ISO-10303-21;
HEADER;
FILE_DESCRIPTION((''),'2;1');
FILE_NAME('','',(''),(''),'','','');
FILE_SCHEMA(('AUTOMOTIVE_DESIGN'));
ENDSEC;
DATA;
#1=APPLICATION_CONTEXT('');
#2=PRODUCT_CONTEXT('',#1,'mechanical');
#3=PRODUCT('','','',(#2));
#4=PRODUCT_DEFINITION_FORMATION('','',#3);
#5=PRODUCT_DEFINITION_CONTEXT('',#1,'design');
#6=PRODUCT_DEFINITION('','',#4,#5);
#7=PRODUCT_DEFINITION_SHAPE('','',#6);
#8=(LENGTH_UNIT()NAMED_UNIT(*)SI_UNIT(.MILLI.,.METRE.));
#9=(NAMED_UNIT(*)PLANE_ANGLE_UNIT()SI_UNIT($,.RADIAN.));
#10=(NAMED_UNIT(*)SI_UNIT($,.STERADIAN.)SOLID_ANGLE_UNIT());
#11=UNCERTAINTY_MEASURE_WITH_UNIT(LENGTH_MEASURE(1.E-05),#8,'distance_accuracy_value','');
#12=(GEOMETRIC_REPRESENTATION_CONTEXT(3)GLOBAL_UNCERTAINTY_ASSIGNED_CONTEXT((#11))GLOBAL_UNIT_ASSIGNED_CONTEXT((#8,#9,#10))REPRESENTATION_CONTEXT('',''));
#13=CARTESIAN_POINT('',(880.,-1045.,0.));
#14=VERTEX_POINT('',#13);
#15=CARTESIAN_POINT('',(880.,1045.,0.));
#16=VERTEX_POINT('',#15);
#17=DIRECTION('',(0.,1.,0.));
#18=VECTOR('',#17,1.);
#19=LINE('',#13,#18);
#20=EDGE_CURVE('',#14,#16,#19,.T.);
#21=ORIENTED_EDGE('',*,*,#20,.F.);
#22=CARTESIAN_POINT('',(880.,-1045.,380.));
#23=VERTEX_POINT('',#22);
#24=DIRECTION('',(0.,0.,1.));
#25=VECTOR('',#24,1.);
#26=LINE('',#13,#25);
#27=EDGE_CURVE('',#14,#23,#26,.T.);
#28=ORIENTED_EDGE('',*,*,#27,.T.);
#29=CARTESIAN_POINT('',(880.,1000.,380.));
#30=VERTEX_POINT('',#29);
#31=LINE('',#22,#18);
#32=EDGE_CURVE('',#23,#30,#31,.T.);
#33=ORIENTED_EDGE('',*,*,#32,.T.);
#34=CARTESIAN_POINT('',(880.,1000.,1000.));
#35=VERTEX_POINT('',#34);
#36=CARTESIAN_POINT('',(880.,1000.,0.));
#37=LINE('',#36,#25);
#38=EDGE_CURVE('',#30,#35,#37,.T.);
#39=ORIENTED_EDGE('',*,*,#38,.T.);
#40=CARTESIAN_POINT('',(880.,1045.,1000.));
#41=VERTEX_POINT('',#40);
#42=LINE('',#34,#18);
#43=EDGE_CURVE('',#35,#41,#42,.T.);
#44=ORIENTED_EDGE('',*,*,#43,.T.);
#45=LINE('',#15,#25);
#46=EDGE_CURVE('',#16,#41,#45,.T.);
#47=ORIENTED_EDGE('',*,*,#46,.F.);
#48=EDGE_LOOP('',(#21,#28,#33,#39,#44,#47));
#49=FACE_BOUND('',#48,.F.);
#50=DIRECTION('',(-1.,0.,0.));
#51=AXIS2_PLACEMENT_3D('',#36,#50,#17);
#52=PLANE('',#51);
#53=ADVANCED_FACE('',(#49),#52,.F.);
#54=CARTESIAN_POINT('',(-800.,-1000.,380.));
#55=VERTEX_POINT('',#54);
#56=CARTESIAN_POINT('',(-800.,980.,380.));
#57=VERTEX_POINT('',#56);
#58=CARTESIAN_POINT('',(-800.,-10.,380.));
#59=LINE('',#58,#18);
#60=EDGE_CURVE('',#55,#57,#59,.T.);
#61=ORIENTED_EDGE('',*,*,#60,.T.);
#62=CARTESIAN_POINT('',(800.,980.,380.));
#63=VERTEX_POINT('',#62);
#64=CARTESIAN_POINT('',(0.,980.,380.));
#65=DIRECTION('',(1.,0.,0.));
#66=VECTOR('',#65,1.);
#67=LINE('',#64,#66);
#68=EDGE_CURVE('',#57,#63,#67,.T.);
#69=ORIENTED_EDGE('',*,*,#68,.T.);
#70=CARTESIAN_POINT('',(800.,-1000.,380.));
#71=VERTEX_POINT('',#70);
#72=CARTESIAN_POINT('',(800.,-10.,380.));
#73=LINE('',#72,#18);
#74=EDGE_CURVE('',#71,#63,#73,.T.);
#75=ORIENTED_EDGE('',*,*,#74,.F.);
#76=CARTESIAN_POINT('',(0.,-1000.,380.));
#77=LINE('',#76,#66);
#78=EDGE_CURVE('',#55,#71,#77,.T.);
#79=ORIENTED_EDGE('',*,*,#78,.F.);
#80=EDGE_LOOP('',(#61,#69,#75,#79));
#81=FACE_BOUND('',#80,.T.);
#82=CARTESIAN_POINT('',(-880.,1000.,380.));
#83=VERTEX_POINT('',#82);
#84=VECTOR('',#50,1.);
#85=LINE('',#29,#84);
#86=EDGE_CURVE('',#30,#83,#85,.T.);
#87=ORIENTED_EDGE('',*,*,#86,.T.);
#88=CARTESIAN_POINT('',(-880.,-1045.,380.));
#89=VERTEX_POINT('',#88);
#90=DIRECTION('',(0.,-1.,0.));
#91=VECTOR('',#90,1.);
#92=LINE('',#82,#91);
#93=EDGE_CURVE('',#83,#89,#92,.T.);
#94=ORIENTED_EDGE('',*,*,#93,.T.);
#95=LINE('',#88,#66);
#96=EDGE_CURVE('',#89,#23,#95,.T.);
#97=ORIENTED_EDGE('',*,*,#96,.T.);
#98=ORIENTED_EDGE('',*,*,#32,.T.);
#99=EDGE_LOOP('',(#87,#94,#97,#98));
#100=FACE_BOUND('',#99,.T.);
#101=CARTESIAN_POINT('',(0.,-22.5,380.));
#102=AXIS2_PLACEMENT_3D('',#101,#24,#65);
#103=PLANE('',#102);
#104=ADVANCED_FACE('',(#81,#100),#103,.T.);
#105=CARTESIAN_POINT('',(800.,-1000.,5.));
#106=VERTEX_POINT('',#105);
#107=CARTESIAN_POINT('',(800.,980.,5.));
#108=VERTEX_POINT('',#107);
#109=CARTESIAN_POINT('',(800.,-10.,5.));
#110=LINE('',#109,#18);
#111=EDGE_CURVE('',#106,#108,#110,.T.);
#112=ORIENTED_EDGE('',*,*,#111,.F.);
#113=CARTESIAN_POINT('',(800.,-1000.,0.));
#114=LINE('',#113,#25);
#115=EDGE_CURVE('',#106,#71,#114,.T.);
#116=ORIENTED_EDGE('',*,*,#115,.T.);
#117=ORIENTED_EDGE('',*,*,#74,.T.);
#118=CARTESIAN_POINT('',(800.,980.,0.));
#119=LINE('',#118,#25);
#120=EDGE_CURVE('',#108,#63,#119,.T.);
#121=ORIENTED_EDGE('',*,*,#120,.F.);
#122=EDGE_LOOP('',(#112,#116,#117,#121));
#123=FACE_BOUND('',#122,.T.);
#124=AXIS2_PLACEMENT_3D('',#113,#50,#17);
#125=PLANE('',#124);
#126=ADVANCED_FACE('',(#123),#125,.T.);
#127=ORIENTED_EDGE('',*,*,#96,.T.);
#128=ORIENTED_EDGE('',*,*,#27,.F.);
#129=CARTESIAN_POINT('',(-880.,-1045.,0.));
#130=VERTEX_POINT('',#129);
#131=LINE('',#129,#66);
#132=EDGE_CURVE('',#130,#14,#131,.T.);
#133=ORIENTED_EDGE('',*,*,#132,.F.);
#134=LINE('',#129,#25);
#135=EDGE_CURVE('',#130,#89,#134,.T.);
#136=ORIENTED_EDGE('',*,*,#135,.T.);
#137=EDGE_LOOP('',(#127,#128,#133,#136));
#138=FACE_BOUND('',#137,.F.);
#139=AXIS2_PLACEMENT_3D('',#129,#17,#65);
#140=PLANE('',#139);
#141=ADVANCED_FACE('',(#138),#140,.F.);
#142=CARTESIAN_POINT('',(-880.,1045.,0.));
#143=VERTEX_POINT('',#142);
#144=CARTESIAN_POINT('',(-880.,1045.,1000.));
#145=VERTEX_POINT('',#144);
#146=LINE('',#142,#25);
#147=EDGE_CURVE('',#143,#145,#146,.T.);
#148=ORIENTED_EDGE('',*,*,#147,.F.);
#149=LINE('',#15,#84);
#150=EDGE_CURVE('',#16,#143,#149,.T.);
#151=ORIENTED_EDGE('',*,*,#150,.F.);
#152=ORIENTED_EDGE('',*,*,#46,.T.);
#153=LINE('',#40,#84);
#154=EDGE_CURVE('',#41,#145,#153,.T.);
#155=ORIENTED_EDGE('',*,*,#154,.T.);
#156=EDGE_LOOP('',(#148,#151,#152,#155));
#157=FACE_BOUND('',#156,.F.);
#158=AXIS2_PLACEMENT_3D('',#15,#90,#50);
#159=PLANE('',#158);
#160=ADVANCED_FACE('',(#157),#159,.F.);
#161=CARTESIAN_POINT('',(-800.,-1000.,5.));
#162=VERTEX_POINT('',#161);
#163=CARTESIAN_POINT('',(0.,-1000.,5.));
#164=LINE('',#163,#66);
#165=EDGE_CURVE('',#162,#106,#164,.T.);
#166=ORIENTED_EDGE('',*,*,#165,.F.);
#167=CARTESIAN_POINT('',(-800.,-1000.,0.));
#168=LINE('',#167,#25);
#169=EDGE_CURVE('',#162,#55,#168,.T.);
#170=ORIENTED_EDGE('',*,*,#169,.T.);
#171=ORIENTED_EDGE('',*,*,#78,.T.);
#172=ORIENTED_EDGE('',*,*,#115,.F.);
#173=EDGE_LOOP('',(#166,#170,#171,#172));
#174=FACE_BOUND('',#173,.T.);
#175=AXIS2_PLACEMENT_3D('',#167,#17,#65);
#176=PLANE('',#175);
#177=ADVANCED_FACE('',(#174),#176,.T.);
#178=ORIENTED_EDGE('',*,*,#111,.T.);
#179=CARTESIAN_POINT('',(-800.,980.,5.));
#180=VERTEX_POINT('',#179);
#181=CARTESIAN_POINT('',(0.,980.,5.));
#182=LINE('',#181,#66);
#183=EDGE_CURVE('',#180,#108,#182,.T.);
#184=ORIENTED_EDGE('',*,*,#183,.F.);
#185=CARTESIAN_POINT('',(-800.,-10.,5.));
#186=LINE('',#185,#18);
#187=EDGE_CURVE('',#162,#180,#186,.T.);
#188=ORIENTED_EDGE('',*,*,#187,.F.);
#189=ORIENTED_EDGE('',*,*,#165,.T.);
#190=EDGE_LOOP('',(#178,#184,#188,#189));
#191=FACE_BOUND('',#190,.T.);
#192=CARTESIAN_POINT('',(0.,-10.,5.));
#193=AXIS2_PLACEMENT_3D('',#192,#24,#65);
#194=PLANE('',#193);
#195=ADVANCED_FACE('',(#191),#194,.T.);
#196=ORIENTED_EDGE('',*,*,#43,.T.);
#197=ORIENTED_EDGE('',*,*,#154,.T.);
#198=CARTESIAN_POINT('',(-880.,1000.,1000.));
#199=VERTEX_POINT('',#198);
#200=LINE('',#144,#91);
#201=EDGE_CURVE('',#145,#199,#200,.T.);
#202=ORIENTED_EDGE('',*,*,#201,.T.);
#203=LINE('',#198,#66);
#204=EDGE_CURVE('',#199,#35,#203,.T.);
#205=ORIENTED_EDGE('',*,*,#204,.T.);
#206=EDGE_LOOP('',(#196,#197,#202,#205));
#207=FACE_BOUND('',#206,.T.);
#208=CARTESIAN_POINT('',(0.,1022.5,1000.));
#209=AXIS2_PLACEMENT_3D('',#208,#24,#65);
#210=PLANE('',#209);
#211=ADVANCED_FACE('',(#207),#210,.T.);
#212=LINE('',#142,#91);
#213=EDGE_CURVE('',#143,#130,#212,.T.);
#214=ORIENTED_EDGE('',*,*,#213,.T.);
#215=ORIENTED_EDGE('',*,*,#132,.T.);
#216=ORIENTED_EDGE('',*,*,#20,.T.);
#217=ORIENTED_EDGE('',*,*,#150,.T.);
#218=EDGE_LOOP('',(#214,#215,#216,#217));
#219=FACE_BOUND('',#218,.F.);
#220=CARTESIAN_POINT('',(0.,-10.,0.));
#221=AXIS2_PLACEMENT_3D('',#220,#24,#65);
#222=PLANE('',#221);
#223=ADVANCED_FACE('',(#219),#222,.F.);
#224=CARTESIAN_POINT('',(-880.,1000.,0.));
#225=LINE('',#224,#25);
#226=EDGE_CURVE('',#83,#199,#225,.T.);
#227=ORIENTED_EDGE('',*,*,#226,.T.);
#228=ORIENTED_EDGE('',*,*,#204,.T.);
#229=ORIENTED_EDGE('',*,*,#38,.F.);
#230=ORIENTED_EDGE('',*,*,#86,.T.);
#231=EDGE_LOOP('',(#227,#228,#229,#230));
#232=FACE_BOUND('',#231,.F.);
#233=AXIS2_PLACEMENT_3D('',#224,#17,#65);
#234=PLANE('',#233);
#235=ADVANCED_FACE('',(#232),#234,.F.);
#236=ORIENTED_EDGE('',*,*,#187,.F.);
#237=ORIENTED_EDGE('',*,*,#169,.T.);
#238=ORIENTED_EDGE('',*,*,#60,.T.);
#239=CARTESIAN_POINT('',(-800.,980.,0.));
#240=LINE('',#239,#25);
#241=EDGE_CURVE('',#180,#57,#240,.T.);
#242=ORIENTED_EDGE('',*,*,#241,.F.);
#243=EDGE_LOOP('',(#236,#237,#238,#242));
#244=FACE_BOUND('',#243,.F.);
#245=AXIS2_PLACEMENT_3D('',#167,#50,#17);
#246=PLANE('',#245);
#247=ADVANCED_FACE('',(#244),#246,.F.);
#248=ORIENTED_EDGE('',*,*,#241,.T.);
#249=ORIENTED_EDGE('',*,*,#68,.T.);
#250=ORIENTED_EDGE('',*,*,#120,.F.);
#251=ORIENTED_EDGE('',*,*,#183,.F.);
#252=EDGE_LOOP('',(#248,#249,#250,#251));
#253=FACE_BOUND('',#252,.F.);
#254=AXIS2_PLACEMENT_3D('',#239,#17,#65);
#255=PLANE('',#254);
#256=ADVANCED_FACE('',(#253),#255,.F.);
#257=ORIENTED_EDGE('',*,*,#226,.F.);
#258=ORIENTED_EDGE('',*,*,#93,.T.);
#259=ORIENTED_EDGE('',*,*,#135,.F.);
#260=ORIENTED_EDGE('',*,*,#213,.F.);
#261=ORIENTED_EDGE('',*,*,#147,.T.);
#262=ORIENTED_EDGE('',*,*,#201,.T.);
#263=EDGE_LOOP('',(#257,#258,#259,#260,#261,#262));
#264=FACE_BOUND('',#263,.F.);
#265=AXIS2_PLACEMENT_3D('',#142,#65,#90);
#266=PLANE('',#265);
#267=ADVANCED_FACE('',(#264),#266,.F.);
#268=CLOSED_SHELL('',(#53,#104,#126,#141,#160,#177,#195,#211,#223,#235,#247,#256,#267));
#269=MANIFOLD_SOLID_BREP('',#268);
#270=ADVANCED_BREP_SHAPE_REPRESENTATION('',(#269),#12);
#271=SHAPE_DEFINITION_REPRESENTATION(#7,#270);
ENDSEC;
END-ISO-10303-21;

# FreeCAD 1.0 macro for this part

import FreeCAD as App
import Part
import Sketcher

V = App.Vector
Q = App.Units.Quantity

doc = App.newDocument("Part")
params = doc.addObject("Spreadsheet::Sheet", "Params")
for row, (alias, value) in enumerate([
    ("sketch1_width", "1760 mm"),
    ("sketch1_width2", "1600 mm"),
    ("sketch1_height", "2045 mm"),
    ("sketch1_height2", "1980 mm"),
    ("pad1_length", "380 mm"),
    ("sketch2_width", "1760 mm"),
    ("sketch2_height", "45 mm"),
    ("pad2_length", "1000 mm"),
    ("sketch3_width", "1600 mm"),
    ("sketch3_height", "1980 mm"),
    ("pad3_length", "5 mm"),
], start=1):
    params.set(f"A{row}", alias)
    params.set(f"B{row}", "=" + value)
    params.setAlias(f"B{row}", alias)

body = doc.addObject("PartDesign::Body", "Body")

sketch1 = body.newObject("Sketcher::SketchObject", "Sketch")
sketch1.AttachmentSupport = (doc.getObject("XY_Plane"), [""])
sketch1.MapMode = "FlatFace"
sketch1.addGeometry(Part.LineSegment(V(-880, 1000, 0), V(-880, -1045, 0)), False)
sketch1.addGeometry(Part.LineSegment(V(-880, -1045, 0), V(880, -1045, 0)), False)
sketch1.addGeometry(Part.LineSegment(V(880, -1045, 0), V(880, 1000, 0)), False)
sketch1.addGeometry(Part.LineSegment(V(880, 1000, 0), V(-880, 1000, 0)), False)
sketch1.addGeometry(Part.LineSegment(V(800, -1000, 0), V(-800, -1000, 0)), False)
sketch1.addGeometry(Part.LineSegment(V(-800, -1000, 0), V(-800, 980, 0)), False)
sketch1.addGeometry(Part.LineSegment(V(-800, 980, 0), V(800, 980, 0)), False)
sketch1.addGeometry(Part.LineSegment(V(800, 980, 0), V(800, -1000, 0)), False)
sketch1.addConstraint(Sketcher.Constraint("Coincident", 0, 2, 1, 1))
sketch1.addConstraint(Sketcher.Constraint("Coincident", 1, 2, 2, 1))
sketch1.addConstraint(Sketcher.Constraint("Coincident", 2, 2, 3, 1))
sketch1.addConstraint(Sketcher.Constraint("Coincident", 3, 2, 0, 1))
sketch1.addConstraint(Sketcher.Constraint("Coincident", 4, 2, 5, 1))
sketch1.addConstraint(Sketcher.Constraint("Coincident", 5, 2, 6, 1))
sketch1.addConstraint(Sketcher.Constraint("Coincident", 6, 2, 7, 1))
sketch1.addConstraint(Sketcher.Constraint("Coincident", 7, 2, 4, 1))
sketch1.addConstraint(Sketcher.Constraint("Vertical", 0))
sketch1.addConstraint(Sketcher.Constraint("Horizontal", 1))
sketch1.addConstraint(Sketcher.Constraint("Vertical", 2))
sketch1.addConstraint(Sketcher.Constraint("Horizontal", 3))
sketch1.addConstraint(Sketcher.Constraint("Horizontal", 4))
sketch1.addConstraint(Sketcher.Constraint("Vertical", 5))
sketch1.addConstraint(Sketcher.Constraint("Horizontal", 6))
sketch1.addConstraint(Sketcher.Constraint("Vertical", 7))
sketch1.addConstraint(Sketcher.Constraint("DistanceX", 1, 1, 1, 2, Q("1760 mm")))
sketch1.addConstraint(Sketcher.Constraint("DistanceX", 4, 2, 4, 1, Q("1600 mm")))
sketch1.addConstraint(Sketcher.Constraint("DistanceY", 0, 2, 0, 1, Q("2045 mm")))
sketch1.addConstraint(Sketcher.Constraint("DistanceY", 5, 1, 5, 2, Q("1980 mm")))
sketch1.addConstraint(Sketcher.Constraint("DistanceX", 0, 2, -1, 1, Q("880 mm")))
sketch1.addConstraint(Sketcher.Constraint("DistanceY", 0, 2, -1, 1, Q("1045 mm")))
sketch1.addConstraint(Sketcher.Constraint("DistanceX", 4, 2, -1, 1, Q("800 mm")))
sketch1.addConstraint(Sketcher.Constraint("DistanceY", 4, 2, -1, 1, Q("1000 mm")))
sketch1.setExpression("Constraints[16]", "Params.sketch1_width")
sketch1.setExpression("Constraints[17]", "Params.sketch1_width2")
sketch1.setExpression("Constraints[18]", "Params.sketch1_height")
sketch1.setExpression("Constraints[19]", "Params.sketch1_height2")
pad1 = body.newObject("PartDesign::Pad", "Pad")
pad1.Profile = sketch1
pad1.setExpression("Length", "Params.pad1_length")

sketch2 = body.newObject("Sketcher::SketchObject", "Sketch001")
sketch2.AttachmentSupport = (doc.getObject("XY_Plane"), [""])
sketch2.MapMode = "FlatFace"
sketch2.addGeometry(Part.LineSegment(V(880, 1045, 0), V(-880, 1045, 0)), False)
sketch2.addGeometry(Part.LineSegment(V(-880, 1045, 0), V(-880, 1000, 0)), False)
sketch2.addGeometry(Part.LineSegment(V(-880, 1000, 0), V(880, 1000, 0)), False)
sketch2.addGeometry(Part.LineSegment(V(880, 1000, 0), V(880, 1045, 0)), False)
sketch2.addConstraint(Sketcher.Constraint("Coincident", 0, 2, 1, 1))
sketch2.addConstraint(Sketcher.Constraint("Coincident", 1, 2, 2, 1))
sketch2.addConstraint(Sketcher.Constraint("Coincident", 2, 2, 3, 1))
sketch2.addConstraint(Sketcher.Constraint("Coincident", 3, 2, 0, 1))
sketch2.addConstraint(Sketcher.Constraint("Horizontal", 0))
sketch2.addConstraint(Sketcher.Constraint("Vertical", 1))
sketch2.addConstraint(Sketcher.Constraint("Horizontal", 2))
sketch2.addConstraint(Sketcher.Constraint("Vertical", 3))
sketch2.addConstraint(Sketcher.Constraint("DistanceX", 0, 2, 0, 1, Q("1760 mm")))
sketch2.addConstraint(Sketcher.Constraint("DistanceY", 1, 2, 1, 1, Q("45 mm")))
sketch2.addConstraint(Sketcher.Constraint("DistanceX", 0, 2, -1, 1, Q("880 mm")))
sketch2.addConstraint(Sketcher.Constraint("DistanceY", -1, 1, 0, 2, Q("1045 mm")))
sketch2.setExpression("Constraints[8]", "Params.sketch2_width")
sketch2.setExpression("Constraints[9]", "Params.sketch2_height")
pad2 = body.newObject("PartDesign::Pad", "Pad001")
pad2.Profile = sketch2
pad2.setExpression("Length", "Params.pad2_length")

sketch3 = body.newObject("Sketcher::SketchObject", "Sketch002")
sketch3.AttachmentSupport = (doc.getObject("XY_Plane"), [""])
sketch3.MapMode = "FlatFace"
sketch3.addGeometry(Part.LineSegment(V(-800, 980, 0), V(-800, -1000, 0)), False)
sketch3.addGeometry(Part.LineSegment(V(-800, -1000, 0), V(800, -1000, 0)), False)
sketch3.addGeometry(Part.LineSegment(V(800, -1000, 0), V(800, 980, 0)), False)
sketch3.addGeometry(Part.LineSegment(V(800, 980, 0), V(-800, 980, 0)), False)
sketch3.addConstraint(Sketcher.Constraint("Coincident", 0, 2, 1, 1))
sketch3.addConstraint(Sketcher.Constraint("Coincident", 1, 2, 2, 1))
sketch3.addConstraint(Sketcher.Constraint("Coincident", 2, 2, 3, 1))
sketch3.addConstraint(Sketcher.Constraint("Coincident", 3, 2, 0, 1))
sketch3.addConstraint(Sketcher.Constraint("Vertical", 0))
sketch3.addConstraint(Sketcher.Constraint("Horizontal", 1))
sketch3.addConstraint(Sketcher.Constraint("Vertical", 2))
sketch3.addConstraint(Sketcher.Constraint("Horizontal", 3))
sketch3.addConstraint(Sketcher.Constraint("DistanceX", 1, 1, 1, 2, Q("1600 mm")))
sketch3.addConstraint(Sketcher.Constraint("DistanceY", 0, 2, 0, 1, Q("1980 mm")))
sketch3.addConstraint(Sketcher.Constraint("DistanceX", 0, 2, -1, 1, Q("800 mm")))
sketch3.addConstraint(Sketcher.Constraint("DistanceY", 0, 2, -1, 1, Q("1000 mm")))
sketch3.setExpression("Constraints[8]", "Params.sketch3_width")
sketch3.setExpression("Constraints[9]", "Params.sketch3_height")
pad3 = body.newObject("PartDesign::Pad", "Pad002")
pad3.Profile = sketch3
pad3.setExpression("Length", "Params.pad3_length")

doc.recompute()
